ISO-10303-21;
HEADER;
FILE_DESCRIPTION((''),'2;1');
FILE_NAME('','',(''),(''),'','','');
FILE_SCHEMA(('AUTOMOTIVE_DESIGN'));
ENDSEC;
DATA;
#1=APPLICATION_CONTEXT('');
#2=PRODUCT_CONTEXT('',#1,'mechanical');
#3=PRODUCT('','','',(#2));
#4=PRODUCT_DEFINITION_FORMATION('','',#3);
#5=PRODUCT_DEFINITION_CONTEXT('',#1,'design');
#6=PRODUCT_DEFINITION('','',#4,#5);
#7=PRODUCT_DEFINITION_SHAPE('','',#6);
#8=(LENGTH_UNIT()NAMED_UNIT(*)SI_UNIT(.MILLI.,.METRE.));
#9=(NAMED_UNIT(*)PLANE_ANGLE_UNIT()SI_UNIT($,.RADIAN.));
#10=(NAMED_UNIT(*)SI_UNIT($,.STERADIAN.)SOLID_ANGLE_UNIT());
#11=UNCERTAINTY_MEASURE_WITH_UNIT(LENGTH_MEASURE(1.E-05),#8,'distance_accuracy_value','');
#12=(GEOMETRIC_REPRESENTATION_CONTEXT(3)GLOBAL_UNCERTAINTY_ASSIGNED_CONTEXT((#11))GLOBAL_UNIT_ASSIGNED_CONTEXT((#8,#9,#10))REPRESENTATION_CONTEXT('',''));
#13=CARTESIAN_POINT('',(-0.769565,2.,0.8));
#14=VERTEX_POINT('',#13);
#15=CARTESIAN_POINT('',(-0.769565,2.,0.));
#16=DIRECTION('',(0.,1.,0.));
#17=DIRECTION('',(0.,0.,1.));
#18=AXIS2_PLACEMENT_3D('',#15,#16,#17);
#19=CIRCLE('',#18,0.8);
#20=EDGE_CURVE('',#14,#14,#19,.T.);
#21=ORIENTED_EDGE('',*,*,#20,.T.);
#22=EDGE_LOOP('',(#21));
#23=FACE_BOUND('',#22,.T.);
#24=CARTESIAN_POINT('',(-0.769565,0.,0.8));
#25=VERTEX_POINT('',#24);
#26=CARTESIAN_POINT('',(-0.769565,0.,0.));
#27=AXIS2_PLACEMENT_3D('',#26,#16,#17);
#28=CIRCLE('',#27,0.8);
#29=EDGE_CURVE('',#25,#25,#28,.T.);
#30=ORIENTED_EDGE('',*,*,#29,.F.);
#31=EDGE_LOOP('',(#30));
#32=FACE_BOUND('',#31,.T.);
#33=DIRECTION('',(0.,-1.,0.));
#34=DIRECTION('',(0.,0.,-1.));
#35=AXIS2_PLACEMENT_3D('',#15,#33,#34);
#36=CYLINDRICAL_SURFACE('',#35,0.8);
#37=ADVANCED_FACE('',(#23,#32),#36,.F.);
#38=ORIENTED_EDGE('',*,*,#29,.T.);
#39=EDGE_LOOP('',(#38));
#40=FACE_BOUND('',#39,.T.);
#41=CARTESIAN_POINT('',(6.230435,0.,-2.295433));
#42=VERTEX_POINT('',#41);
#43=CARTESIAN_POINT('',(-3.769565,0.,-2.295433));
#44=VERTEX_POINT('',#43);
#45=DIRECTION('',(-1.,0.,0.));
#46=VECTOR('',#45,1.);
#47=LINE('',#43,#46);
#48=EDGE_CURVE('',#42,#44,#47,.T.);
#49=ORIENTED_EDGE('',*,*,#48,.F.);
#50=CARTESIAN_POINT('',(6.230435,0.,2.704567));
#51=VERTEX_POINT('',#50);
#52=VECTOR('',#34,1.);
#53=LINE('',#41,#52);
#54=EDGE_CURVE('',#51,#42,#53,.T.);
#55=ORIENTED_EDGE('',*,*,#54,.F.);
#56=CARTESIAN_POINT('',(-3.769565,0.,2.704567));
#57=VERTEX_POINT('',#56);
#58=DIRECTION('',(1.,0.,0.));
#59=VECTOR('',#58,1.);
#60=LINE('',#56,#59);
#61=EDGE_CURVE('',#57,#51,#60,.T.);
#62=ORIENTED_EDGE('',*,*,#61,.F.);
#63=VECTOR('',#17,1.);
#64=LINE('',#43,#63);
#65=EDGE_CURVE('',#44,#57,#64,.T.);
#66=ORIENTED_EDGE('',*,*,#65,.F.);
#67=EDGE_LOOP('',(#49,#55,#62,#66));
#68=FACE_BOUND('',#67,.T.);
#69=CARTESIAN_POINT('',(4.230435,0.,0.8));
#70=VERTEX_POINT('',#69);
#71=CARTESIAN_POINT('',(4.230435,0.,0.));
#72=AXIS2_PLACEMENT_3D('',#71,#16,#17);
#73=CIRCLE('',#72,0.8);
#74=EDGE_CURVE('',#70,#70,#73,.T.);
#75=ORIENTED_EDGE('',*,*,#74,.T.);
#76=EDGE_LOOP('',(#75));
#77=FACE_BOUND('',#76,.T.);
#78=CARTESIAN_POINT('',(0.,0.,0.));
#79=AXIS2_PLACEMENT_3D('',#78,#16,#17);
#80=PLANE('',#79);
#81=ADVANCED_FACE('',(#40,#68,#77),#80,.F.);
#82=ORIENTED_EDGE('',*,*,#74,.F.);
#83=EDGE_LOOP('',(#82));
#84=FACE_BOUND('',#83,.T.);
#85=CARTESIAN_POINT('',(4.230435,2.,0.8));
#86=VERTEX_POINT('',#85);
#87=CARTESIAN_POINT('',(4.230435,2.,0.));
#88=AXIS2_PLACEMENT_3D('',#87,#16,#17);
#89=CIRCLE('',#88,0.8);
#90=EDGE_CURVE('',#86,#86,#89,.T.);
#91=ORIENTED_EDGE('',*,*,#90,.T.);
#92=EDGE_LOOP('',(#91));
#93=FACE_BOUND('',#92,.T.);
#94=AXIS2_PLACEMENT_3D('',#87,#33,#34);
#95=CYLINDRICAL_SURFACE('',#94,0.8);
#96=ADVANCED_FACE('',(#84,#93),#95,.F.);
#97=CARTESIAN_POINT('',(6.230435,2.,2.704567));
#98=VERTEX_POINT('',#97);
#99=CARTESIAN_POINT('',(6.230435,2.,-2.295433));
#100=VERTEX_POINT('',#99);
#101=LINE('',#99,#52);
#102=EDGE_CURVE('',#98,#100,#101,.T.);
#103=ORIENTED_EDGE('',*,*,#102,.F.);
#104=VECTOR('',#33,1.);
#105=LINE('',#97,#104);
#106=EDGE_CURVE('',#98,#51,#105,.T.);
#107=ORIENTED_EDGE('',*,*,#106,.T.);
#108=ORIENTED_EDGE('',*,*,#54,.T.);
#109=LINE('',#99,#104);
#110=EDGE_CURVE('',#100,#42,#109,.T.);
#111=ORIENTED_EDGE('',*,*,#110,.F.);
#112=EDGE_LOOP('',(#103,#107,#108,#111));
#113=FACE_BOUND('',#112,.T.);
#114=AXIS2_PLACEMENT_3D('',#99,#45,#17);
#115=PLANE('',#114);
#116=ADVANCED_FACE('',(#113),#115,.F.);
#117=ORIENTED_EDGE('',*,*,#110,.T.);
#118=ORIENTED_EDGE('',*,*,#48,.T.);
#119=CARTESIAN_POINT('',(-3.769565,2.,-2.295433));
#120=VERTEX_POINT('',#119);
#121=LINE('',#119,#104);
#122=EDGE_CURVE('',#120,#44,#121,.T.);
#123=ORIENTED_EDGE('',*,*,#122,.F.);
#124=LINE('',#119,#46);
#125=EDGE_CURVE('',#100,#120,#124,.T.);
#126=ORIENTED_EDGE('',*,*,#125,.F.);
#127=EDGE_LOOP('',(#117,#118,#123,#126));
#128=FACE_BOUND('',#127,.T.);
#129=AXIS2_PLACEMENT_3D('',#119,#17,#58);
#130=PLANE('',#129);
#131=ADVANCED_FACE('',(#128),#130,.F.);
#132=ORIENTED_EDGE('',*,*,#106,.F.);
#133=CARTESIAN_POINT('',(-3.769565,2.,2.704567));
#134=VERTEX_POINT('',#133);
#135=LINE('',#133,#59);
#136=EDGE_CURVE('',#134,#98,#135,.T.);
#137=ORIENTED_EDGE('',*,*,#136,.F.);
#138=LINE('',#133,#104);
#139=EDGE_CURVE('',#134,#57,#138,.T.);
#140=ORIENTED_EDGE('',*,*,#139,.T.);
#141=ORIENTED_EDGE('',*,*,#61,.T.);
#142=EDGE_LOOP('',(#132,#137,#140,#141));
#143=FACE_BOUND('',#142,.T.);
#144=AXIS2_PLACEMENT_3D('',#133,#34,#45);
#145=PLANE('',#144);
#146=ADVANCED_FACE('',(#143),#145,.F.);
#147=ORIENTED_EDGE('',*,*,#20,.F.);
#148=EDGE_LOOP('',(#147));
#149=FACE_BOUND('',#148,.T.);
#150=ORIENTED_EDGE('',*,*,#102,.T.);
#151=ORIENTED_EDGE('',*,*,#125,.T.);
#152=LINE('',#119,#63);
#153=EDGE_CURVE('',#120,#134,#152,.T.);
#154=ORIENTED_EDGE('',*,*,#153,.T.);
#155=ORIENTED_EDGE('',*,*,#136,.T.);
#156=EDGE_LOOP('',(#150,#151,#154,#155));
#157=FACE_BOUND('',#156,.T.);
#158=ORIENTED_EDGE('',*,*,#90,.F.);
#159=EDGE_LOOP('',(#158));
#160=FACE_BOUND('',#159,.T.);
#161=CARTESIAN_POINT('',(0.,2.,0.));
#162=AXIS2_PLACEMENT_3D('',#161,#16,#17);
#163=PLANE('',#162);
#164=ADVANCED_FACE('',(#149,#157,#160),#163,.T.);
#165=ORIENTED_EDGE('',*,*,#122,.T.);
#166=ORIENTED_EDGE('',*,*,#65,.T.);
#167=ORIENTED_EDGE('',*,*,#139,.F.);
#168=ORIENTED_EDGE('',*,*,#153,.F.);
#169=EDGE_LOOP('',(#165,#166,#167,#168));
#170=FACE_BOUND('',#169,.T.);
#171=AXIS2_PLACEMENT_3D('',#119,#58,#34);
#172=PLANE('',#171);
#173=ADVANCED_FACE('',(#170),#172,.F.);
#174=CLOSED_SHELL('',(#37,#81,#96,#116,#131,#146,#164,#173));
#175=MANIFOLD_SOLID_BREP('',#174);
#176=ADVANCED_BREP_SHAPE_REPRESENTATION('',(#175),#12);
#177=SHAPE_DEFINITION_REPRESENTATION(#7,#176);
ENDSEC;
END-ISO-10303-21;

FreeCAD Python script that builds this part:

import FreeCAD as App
import Part
import Sketcher
from FreeCAD import Vector
Q = App.Units.Quantity

doc = App.newDocument("Part")
body = doc.addObject("PartDesign::Body", "Body")

# Sketch on XZ plane
sketch1 = body.newObject("Sketcher::SketchObject", "Sketch")
sketch1.AttachmentSupport = (doc.getObject("XZ_Plane"), [""])
sketch1.MapMode = "FlatFace"
sketch1.addGeometry([
    Part.LineSegment(Vector(-3.8, -2.3, 0), Vector(-3.8, 2.7, 0)),  # 0
    Part.LineSegment(Vector(-3.8, 2.7, 0), Vector(6.2, 2.7, 0)),  # 1
    Part.LineSegment(Vector(6.2, 2.7, 0), Vector(6.2, -2.3, 0)),  # 2
    Part.LineSegment(Vector(6.2, -2.3, 0), Vector(-3.8, -2.3, 0)),  # 3
    Part.Circle(Vector(-0.8, 0, 0), Vector(0, 0, 1), 0.8),  # 4
    Part.Circle(Vector(4.2, 0, 0), Vector(0, 0, 1), 0.8),  # 5
], False)
sketch1.addConstraint([
    Sketcher.Constraint("Coincident", 0, 2, 1, 1),
    Sketcher.Constraint("Coincident", 1, 2, 2, 1),
    Sketcher.Constraint("Coincident", 2, 2, 3, 1),
    Sketcher.Constraint("Coincident", 3, 2, 0, 1),
    Sketcher.Constraint("Vertical", 0),
    Sketcher.Constraint("Horizontal", 1),
    Sketcher.Constraint("Vertical", 2),
    Sketcher.Constraint("Horizontal", 3),
    Sketcher.Constraint("Equal", 4, 5),
    Sketcher.Constraint("PointOnObject", 4, 3, -1),
    Sketcher.Constraint("PointOnObject", 5, 3, -1),
    Sketcher.Constraint("Diameter", 4, Q("1.6 mm")),
    Sketcher.Constraint("DistanceX", 1, 1, 1, 2, Q("10 mm")),
    Sketcher.Constraint("DistanceY", 0, 1, 0, 2, Q("5 mm")),
    Sketcher.Constraint("DistanceX", 4, 3, 5, 3, Q("5 mm")),
    Sketcher.Constraint("DistanceX", 0, 2, 4, 3, Q("3 mm")),
    Sketcher.Constraint("DistanceX", 4, 3, -1, 1, Q("0.769565 mm")),
    Sketcher.Constraint("DistanceY", -1, 1, 0, 2, Q("2.704567 mm")),
])
pad1 = body.newObject("PartDesign::Pad", "Pad")
pad1.Profile = sketch1
pad1.Length = 2
pad1.Reversed = True

doc.recompute()
